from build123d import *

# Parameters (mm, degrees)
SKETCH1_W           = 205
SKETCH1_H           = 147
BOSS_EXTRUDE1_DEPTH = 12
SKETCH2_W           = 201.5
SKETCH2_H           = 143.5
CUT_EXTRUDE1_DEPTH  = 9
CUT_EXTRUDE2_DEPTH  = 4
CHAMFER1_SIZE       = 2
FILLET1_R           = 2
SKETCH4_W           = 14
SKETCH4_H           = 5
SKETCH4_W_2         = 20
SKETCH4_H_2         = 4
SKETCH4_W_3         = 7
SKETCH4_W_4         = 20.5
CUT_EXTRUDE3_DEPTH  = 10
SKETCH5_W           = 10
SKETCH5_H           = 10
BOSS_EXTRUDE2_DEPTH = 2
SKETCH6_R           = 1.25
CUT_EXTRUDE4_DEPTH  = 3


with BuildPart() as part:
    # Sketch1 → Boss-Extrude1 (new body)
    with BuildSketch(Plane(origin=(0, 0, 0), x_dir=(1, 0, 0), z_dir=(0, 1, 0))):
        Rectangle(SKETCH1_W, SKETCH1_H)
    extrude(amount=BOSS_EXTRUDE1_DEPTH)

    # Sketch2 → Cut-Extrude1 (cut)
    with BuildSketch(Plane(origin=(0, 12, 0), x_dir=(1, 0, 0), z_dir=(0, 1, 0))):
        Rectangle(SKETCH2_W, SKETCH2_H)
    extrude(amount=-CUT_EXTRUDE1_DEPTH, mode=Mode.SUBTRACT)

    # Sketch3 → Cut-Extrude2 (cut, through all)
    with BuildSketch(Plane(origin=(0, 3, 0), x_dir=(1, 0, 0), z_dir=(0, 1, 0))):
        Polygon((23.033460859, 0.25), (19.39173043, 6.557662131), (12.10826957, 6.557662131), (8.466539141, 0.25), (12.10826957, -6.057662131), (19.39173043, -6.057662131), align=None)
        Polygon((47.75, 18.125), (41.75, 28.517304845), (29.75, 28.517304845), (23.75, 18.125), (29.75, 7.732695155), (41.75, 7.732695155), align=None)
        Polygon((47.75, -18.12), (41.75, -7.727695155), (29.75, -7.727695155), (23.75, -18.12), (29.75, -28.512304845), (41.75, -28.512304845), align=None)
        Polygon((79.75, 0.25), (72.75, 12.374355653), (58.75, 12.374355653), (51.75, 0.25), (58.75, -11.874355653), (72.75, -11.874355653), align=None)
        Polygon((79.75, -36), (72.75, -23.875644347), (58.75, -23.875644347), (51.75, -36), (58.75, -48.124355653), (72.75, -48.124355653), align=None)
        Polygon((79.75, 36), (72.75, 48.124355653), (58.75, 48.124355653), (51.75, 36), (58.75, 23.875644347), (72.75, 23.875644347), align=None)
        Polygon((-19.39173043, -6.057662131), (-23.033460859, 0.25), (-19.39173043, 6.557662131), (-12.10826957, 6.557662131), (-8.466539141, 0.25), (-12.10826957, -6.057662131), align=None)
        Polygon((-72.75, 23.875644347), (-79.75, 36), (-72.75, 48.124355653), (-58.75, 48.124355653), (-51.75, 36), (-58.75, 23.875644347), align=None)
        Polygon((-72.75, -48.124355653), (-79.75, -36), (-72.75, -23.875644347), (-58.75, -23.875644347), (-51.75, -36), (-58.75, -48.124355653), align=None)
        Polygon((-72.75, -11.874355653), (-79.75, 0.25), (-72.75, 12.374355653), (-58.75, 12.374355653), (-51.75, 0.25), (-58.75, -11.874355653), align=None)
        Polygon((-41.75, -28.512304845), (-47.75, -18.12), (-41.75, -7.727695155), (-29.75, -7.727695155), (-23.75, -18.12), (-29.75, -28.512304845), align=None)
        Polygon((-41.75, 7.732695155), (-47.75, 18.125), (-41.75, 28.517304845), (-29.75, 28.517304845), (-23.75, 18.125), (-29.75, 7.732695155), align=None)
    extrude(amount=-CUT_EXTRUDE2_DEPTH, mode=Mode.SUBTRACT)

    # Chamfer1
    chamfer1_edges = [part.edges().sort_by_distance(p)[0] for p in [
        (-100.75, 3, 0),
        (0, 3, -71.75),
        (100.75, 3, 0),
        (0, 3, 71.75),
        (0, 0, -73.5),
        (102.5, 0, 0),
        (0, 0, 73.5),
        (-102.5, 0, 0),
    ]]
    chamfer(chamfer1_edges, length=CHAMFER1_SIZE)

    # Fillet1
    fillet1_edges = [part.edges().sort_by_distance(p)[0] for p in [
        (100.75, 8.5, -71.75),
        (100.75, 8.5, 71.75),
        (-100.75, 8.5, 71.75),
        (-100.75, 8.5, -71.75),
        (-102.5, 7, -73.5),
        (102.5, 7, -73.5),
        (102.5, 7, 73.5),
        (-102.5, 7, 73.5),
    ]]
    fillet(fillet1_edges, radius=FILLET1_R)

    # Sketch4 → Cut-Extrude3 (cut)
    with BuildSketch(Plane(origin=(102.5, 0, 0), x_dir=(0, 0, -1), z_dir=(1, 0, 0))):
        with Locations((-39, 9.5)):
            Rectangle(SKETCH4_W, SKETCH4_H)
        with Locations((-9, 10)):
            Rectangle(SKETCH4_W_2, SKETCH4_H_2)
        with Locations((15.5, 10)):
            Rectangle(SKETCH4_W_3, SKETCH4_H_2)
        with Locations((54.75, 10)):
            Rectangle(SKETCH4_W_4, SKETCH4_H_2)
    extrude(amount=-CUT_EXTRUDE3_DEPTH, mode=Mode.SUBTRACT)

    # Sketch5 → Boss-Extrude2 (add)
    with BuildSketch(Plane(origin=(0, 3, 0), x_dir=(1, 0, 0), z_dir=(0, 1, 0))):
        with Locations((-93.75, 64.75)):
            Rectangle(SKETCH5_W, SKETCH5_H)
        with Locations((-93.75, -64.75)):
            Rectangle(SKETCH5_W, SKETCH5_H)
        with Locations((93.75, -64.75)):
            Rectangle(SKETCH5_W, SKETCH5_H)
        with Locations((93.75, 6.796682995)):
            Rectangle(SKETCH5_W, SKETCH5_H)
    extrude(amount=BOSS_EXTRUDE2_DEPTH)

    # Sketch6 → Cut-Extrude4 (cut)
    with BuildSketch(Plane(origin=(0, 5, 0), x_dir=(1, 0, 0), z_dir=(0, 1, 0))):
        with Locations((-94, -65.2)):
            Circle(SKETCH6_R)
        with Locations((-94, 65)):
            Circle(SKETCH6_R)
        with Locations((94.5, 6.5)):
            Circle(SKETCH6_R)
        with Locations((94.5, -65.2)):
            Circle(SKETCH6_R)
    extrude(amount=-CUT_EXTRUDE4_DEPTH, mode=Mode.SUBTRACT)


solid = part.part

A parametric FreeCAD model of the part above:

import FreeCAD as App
import Part
import Sketcher
from FreeCAD import Vector
Q = App.Units.Quantity


def edges_at(feature, points):
    """Names of the edges that pass closest to the given points."""
    edges = feature.Shape.Edges
    near = lambda p: min(range(len(edges)), key=lambda i: edges[i].distToShape(Part.Vertex(*p))[0])
    return sorted({f"Edge{near(p) + 1}" for p in points})

doc = App.newDocument("Part")
body = doc.addObject("PartDesign::Body", "Body")

# Sketch on XZ plane
sketch1 = body.newObject("Sketcher::SketchObject", "Sketch")
sketch1.AttachmentSupport = (doc.getObject("XZ_Plane"), [""])
sketch1.MapMode = "FlatFace"
sketch1.addGeometry([
    Part.LineSegment(Vector(-102.5, -73.5, 0), Vector(-102.5, 73.5, 0)),
    Part.LineSegment(Vector(-102.5, 73.5, 0), Vector(102.5, 73.5, 0)),
    Part.LineSegment(Vector(102.5, 73.5, 0), Vector(102.5, -73.5, 0)),
    Part.LineSegment(Vector(102.5, -73.5, 0), Vector(-102.5, -73.5, 0)),
], False)
sketch1.addConstraint([
    Sketcher.Constraint("Coincident", 0, 2, 1, 1),
    Sketcher.Constraint("Coincident", 1, 2, 2, 1),
    Sketcher.Constraint("Coincident", 2, 2, 3, 1),
    Sketcher.Constraint("Coincident", 3, 2, 0, 1),
    Sketcher.Constraint("Vertical", 0),
    Sketcher.Constraint("Horizontal", 1),
    Sketcher.Constraint("Vertical", 2),
    Sketcher.Constraint("Horizontal", 3),
    Sketcher.Constraint("Symmetric", 0, 2, 2, 2, -1, 1),
    Sketcher.Constraint("DistanceX", 1, 1, 1, 2, Q("205 mm")),
    Sketcher.Constraint("DistanceY", 0, 1, 0, 2, Q("147 mm")),
])
pad1 = body.newObject("PartDesign::Pad", "Pad")
pad1.Profile = sketch1
pad1.Length = 12
pad1.Reversed = True

# Sketch on XZ plane
sketch2 = body.newObject("Sketcher::SketchObject", "Sketch001")
sketch2.AttachmentSupport = (doc.getObject("XZ_Plane"), [""])
sketch2.MapMode = "FlatFace"
sketch2.AttachmentOffset = App.Placement(Vector(0, 0, -12), App.Rotation())
sketch2.addGeometry([
    Part.LineSegment(Vector(-100.75, -71.75, 0), Vector(-100.75, 71.75, 0)),
    Part.LineSegment(Vector(-100.75, 71.75, 0), Vector(100.75, 71.75, 0)),
    Part.LineSegment(Vector(100.75, 71.75, 0), Vector(100.75, -71.75, 0)),
    Part.LineSegment(Vector(100.75, -71.75, 0), Vector(-100.75, -71.75, 0)),
], False)
sketch2.addConstraint([
    Sketcher.Constraint("Coincident", 0, 2, 1, 1),
    Sketcher.Constraint("Coincident", 1, 2, 2, 1),
    Sketcher.Constraint("Coincident", 2, 2, 3, 1),
    Sketcher.Constraint("Coincident", 3, 2, 0, 1),
    Sketcher.Constraint("Vertical", 0),
    Sketcher.Constraint("Horizontal", 1),
    Sketcher.Constraint("Vertical", 2),
    Sketcher.Constraint("Horizontal", 3),
    Sketcher.Constraint("Symmetric", 0, 2, 2, 2, -1, 1),
    Sketcher.Constraint("DistanceX", 1, 1, 1, 2, Q("201.5 mm")),
    Sketcher.Constraint("DistanceY", 0, 1, 0, 2, Q("143.5 mm")),
])
pocket1 = body.newObject("PartDesign::Pocket", "Pocket")
pocket1.Profile = sketch2
pocket1.Length = 9
pocket1.Reversed = True

# Sketch on XZ plane
sketch3 = body.newObject("Sketcher::SketchObject", "Sketch002")
sketch3.AttachmentSupport = (doc.getObject("XZ_Plane"), [""])
sketch3.MapMode = "FlatFace"
sketch3.AttachmentOffset = App.Placement(Vector(0, 0, -3), App.Rotation())
sketch3.addGeometry([
    Part.LineSegment(Vector(23.033461, -0.25, 0), Vector(19.39173, -6.557662, 0)),  # 0
    Part.LineSegment(Vector(19.39173, -6.557662, 0), Vector(12.10827, -6.557662, 0)),  # 1
    Part.LineSegment(Vector(12.10827, -6.557662, 0), Vector(8.466539, -0.25, 0)),  # 2
    Part.LineSegment(Vector(8.466539, -0.25, 0), Vector(12.10827, 6.057662, 0)),  # 3
    Part.LineSegment(Vector(12.10827, 6.057662, 0), Vector(19.39173, 6.057662, 0)),  # 4
    Part.LineSegment(Vector(19.39173, 6.057662, 0), Vector(23.033461, -0.25, 0)),  # 5
    Part.LineSegment(Vector(47.75, -18.125, 0), Vector(41.75, -28.517305, 0)),  # 6
    Part.LineSegment(Vector(41.75, -28.517305, 0), Vector(29.75, -28.517305, 0)),  # 7
    Part.LineSegment(Vector(29.75, -28.517305, 0), Vector(23.75, -18.125, 0)),  # 8
    Part.LineSegment(Vector(23.75, -18.125, 0), Vector(29.75, -7.732695, 0)),  # 9
    Part.LineSegment(Vector(29.75, -7.732695, 0), Vector(41.75, -7.732695, 0)),  # 10
    Part.LineSegment(Vector(41.75, -7.732695, 0), Vector(47.75, -18.125, 0)),  # 11
    Part.LineSegment(Vector(47.75, 18.12, 0), Vector(41.75, 7.727695, 0)),  # 12
    Part.LineSegment(Vector(41.75, 7.727695, 0), Vector(29.75, 7.727695, 0)),  # 13
    Part.LineSegment(Vector(29.75, 7.727695, 0), Vector(23.75, 18.12, 0)),  # 14
    Part.LineSegment(Vector(23.75, 18.12, 0), Vector(29.75, 28.512305, 0)),  # 15
    Part.LineSegment(Vector(29.75, 28.512305, 0), Vector(41.75, 28.512305, 0)),  # 16
    Part.LineSegment(Vector(41.75, 28.512305, 0), Vector(47.75, 18.12, 0)),  # 17
    Part.LineSegment(Vector(79.75, -0.25, 0), Vector(72.75, -12.374356, 0)),  # 18
    Part.LineSegment(Vector(72.75, -12.374356, 0), Vector(58.75, -12.374356, 0)),  # 19
    Part.LineSegment(Vector(58.75, -12.374356, 0), Vector(51.75, -0.25, 0)),  # 20
    Part.LineSegment(Vector(51.75, -0.25, 0), Vector(58.75, 11.874356, 0)),  # 21
    Part.LineSegment(Vector(58.75, 11.874356, 0), Vector(72.75, 11.874356, 0)),  # 22
    Part.LineSegment(Vector(72.75, 11.874356, 0), Vector(79.75, -0.25, 0)),  # 23
    Part.LineSegment(Vector(79.75, 36, 0), Vector(72.75, 23.875644, 0)),  # 24
    Part.LineSegment(Vector(72.75, 23.875644, 0), Vector(58.75, 23.875644, 0)),  # 25
    Part.LineSegment(Vector(58.75, 23.875644, 0), Vector(51.75, 36, 0)),  # 26
    Part.LineSegment(Vector(51.75, 36, 0), Vector(58.75, 48.124356, 0)),  # 27
    Part.LineSegment(Vector(58.75, 48.124356, 0), Vector(72.75, 48.124356, 0)),  # 28
    Part.LineSegment(Vector(72.75, 48.124356, 0), Vector(79.75, 36, 0)),  # 29
    Part.LineSegment(Vector(79.75, -36, 0), Vector(72.75, -48.124356, 0)),  # 30
    Part.LineSegment(Vector(72.75, -48.124356, 0), Vector(58.75, -48.124356, 0)),  # 31
    Part.LineSegment(Vector(58.75, -48.124356, 0), Vector(51.75, -36, 0)),  # 32
    Part.LineSegment(Vector(51.75, -36, 0), Vector(58.75, -23.875644, 0)),  # 33
    Part.LineSegment(Vector(58.75, -23.875644, 0), Vector(72.75, -23.875644, 0)),  # 34
    Part.LineSegment(Vector(72.75, -23.875644, 0), Vector(79.75, -36, 0)),  # 35
    Part.LineSegment(Vector(-23.033461, -0.25, 0), Vector(-19.39173, 6.057662, 0)),  # 36
    Part.LineSegment(Vector(-19.39173, 6.057662, 0), Vector(-12.10827, 6.057662, 0)),  # 37
    Part.LineSegment(Vector(-12.10827, 6.057662, 0), Vector(-8.466539, -0.25, 0)),  # 38
    Part.LineSegment(Vector(-8.466539, -0.25, 0), Vector(-12.10827, -6.557662, 0)),  # 39
    Part.LineSegment(Vector(-12.10827, -6.557662, 0), Vector(-19.39173, -6.557662, 0)),  # 40
    Part.LineSegment(Vector(-19.39173, -6.557662, 0), Vector(-23.033461, -0.25, 0)),  # 41
    Part.LineSegment(Vector(-79.75, -36, 0), Vector(-72.75, -23.875644, 0)),  # 42
    Part.LineSegment(Vector(-72.75, -23.875644, 0), Vector(-58.75, -23.875644, 0)),  # 43
    Part.LineSegment(Vector(-58.75, -23.875644, 0), Vector(-51.75, -36, 0)),  # 44
    Part.LineSegment(Vector(-51.75, -36, 0), Vector(-58.75, -48.124356, 0)),  # 45
    Part.LineSegment(Vector(-58.75, -48.124356, 0), Vector(-72.75, -48.124356, 0)),  # 46
    Part.LineSegment(Vector(-72.75, -48.124356, 0), Vector(-79.75, -36, 0)),  # 47
    Part.LineSegment(Vector(-79.75, 36, 0), Vector(-72.75, 48.124356, 0)),  # 48
    Part.LineSegment(Vector(-72.75, 48.124356, 0), Vector(-58.75, 48.124356, 0)),  # 49
    Part.LineSegment(Vector(-58.75, 48.124356, 0), Vector(-51.75, 36, 0)),  # 50
    Part.LineSegment(Vector(-51.75, 36, 0), Vector(-58.75, 23.875644, 0)),  # 51
    Part.LineSegment(Vector(-58.75, 23.875644, 0), Vector(-72.75, 23.875644, 0)),  # 52
    Part.LineSegment(Vector(-72.75, 23.875644, 0), Vector(-79.75, 36, 0)),  # 53
    Part.LineSegment(Vector(-79.75, -0.25, 0), Vector(-72.75, 11.874356, 0)),  # 54
    Part.LineSegment(Vector(-72.75, 11.874356, 0), Vector(-58.75, 11.874356, 0)),  # 55
    Part.LineSegment(Vector(-58.75, 11.874356, 0), Vector(-51.75, -0.25, 0)),  # 56
    Part.LineSegment(Vector(-51.75, -0.25, 0), Vector(-58.75, -12.374356, 0)),  # 57
    Part.LineSegment(Vector(-58.75, -12.374356, 0), Vector(-72.75, -12.374356, 0)),  # 58
    Part.LineSegment(Vector(-72.75, -12.374356, 0), Vector(-79.75, -0.25, 0)),  # 59
    Part.LineSegment(Vector(-47.75, 18.12, 0), Vector(-41.75, 28.512305, 0)),  # 60
    Part.LineSegment(Vector(-41.75, 28.512305, 0), Vector(-29.75, 28.512305, 0)),  # 61
    Part.LineSegment(Vector(-29.75, 28.512305, 0), Vector(-23.75, 18.12, 0)),  # 62
    Part.LineSegment(Vector(-23.75, 18.12, 0), Vector(-29.75, 7.727695, 0)),  # 63
    Part.LineSegment(Vector(-29.75, 7.727695, 0), Vector(-41.75, 7.727695, 0)),  # 64
    Part.LineSegment(Vector(-41.75, 7.727695, 0), Vector(-47.75, 18.12, 0)),  # 65
    Part.LineSegment(Vector(-47.75, -18.125, 0), Vector(-41.75, -7.732695, 0)),  # 66
    Part.LineSegment(Vector(-41.75, -7.732695, 0), Vector(-29.75, -7.732695, 0)),  # 67
    Part.LineSegment(Vector(-29.75, -7.732695, 0), Vector(-23.75, -18.125, 0)),  # 68
    Part.LineSegment(Vector(-23.75, -18.125, 0), Vector(-29.75, -28.517305, 0)),  # 69
    Part.LineSegment(Vector(-29.75, -28.517305, 0), Vector(-41.75, -28.517305, 0)),  # 70
    Part.LineSegment(Vector(-41.75, -28.517305, 0), Vector(-47.75, -18.125, 0)),  # 71
], False)
sketch3.addConstraint([
    Sketcher.Constraint("Coincident", 0, 2, 1, 1),
    Sketcher.Constraint("Coincident", 1, 2, 2, 1),
    Sketcher.Constraint("Coincident", 2, 2, 3, 1),
    Sketcher.Constraint("Coincident", 3, 2, 4, 1),
    Sketcher.Constraint("Coincident", 4, 2, 5, 1),
    Sketcher.Constraint("Coincident", 5, 2, 0, 1),
    Sketcher.Constraint("Coincident", 6, 2, 7, 1),
    Sketcher.Constraint("Coincident", 7, 2, 8, 1),
    Sketcher.Constraint("Coincident", 8, 2, 9, 1),
    Sketcher.Constraint("Coincident", 9, 2, 10, 1),
    Sketcher.Constraint("Coincident", 10, 2, 11, 1),
    Sketcher.Constraint("Coincident", 11, 2, 6, 1),
    Sketcher.Constraint("Coincident", 12, 2, 13, 1),
    Sketcher.Constraint("Coincident", 13, 2, 14, 1),
    Sketcher.Constraint("Coincident", 14, 2, 15, 1),
    Sketcher.Constraint("Coincident", 15, 2, 16, 1),
    Sketcher.Constraint("Coincident", 16, 2, 17, 1),
    Sketcher.Constraint("Coincident", 17, 2, 12, 1),
    Sketcher.Constraint("Coincident", 18, 2, 19, 1),
    Sketcher.Constraint("Coincident", 19, 2, 20, 1),
    Sketcher.Constraint("Coincident", 20, 2, 21, 1),
    Sketcher.Constraint("Coincident", 21, 2, 22, 1),
    Sketcher.Constraint("Coincident", 22, 2, 23, 1),
    Sketcher.Constraint("Coincident", 23, 2, 18, 1),
    Sketcher.Constraint("Coincident", 24, 2, 25, 1),
    Sketcher.Constraint("Coincident", 25, 2, 26, 1),
    Sketcher.Constraint("Coincident", 26, 2, 27, 1),
    Sketcher.Constraint("Coincident", 27, 2, 28, 1),
    Sketcher.Constraint("Coincident", 28, 2, 29, 1),
    Sketcher.Constraint("Coincident", 29, 2, 24, 1),
    Sketcher.Constraint("Coincident", 30, 2, 31, 1),
    Sketcher.Constraint("Coincident", 31, 2, 32, 1),
    Sketcher.Constraint("Coincident", 32, 2, 33, 1),
    Sketcher.Constraint("Coincident", 33, 2, 34, 1),
    Sketcher.Constraint("Coincident", 34, 2, 35, 1),
    Sketcher.Constraint("Coincident", 35, 2, 30, 1),
    Sketcher.Constraint("Coincident", 36, 2, 37, 1),
    Sketcher.Constraint("Coincident", 37, 2, 38, 1),
    Sketcher.Constraint("Coincident", 38, 2, 39, 1),
    Sketcher.Constraint("Coincident", 39, 2, 40, 1),
    Sketcher.Constraint("Coincident", 40, 2, 41, 1),
    Sketcher.Constraint("Coincident", 41, 2, 36, 1),
    Sketcher.Constraint("Coincident", 42, 2, 43, 1),
    Sketcher.Constraint("Coincident", 43, 2, 44, 1),
    Sketcher.Constraint("Coincident", 44, 2, 45, 1),
    Sketcher.Constraint("Coincident", 45, 2, 46, 1),
    Sketcher.Constraint("Coincident", 46, 2, 47, 1),
    Sketcher.Constraint("Coincident", 47, 2, 42, 1),
    Sketcher.Constraint("Coincident", 48, 2, 49, 1),
    Sketcher.Constraint("Coincident", 49, 2, 50, 1),
    Sketcher.Constraint("Coincident", 50, 2, 51, 1),
    Sketcher.Constraint("Coincident", 51, 2, 52, 1),
    Sketcher.Constraint("Coincident", 52, 2, 53, 1),
    Sketcher.Constraint("Coincident", 53, 2, 48, 1),
    Sketcher.Constraint("Coincident", 54, 2, 55, 1),
    Sketcher.Constraint("Coincident", 55, 2, 56, 1),
    Sketcher.Constraint("Coincident", 56, 2, 57, 1),
    Sketcher.Constraint("Coincident", 57, 2, 58, 1),
    Sketcher.Constraint("Coincident", 58, 2, 59, 1),
    Sketcher.Constraint("Coincident", 59, 2, 54, 1),
    Sketcher.Constraint("Coincident", 60, 2, 61, 1),
    Sketcher.Constraint("Coincident", 61, 2, 62, 1),
    Sketcher.Constraint("Coincident", 62, 2, 63, 1),
    Sketcher.Constraint("Coincident", 63, 2, 64, 1),
    Sketcher.Constraint("Coincident", 64, 2, 65, 1),
    Sketcher.Constraint("Coincident", 65, 2, 60, 1),
    Sketcher.Constraint("Coincident", 66, 2, 67, 1),
    Sketcher.Constraint("Coincident", 67, 2, 68, 1),
    Sketcher.Constraint("Coincident", 68, 2, 69, 1),
    Sketcher.Constraint("Coincident", 69, 2, 70, 1),
    Sketcher.Constraint("Coincident", 70, 2, 71, 1),
    Sketcher.Constraint("Coincident", 71, 2, 66, 1),
    Sketcher.Constraint("Horizontal", 1),
    Sketcher.Constraint("Horizontal", 4),
    Sketcher.Constraint("Horizontal", 7),
    Sketcher.Constraint("Horizontal", 10),
    Sketcher.Constraint("Horizontal", 13),
    Sketcher.Constraint("Horizontal", 16),
    Sketcher.Constraint("Horizontal", 19),
    Sketcher.Constraint("Horizontal", 22),
    Sketcher.Constraint("Horizontal", 25),
    Sketcher.Constraint("Horizontal", 28),
    Sketcher.Constraint("Horizontal", 31),
    Sketcher.Constraint("Horizontal", 34),
    Sketcher.Constraint("Horizontal", 37),
    Sketcher.Constraint("Horizontal", 40),
    Sketcher.Constraint("Horizontal", 43),
    Sketcher.Constraint("Horizontal", 46),
    Sketcher.Constraint("Horizontal", 49),
    Sketcher.Constraint("Horizontal", 52),
    Sketcher.Constraint("Horizontal", 55),
    Sketcher.Constraint("Horizontal", 58),
    Sketcher.Constraint("Horizontal", 61),
    Sketcher.Constraint("Horizontal", 64),
    Sketcher.Constraint("Horizontal", 67),
    Sketcher.Constraint("Horizontal", 70),
    Sketcher.Constraint("Symmetric", 24, 2, 42, 2, -1, 1),
    Sketcher.Constraint("Symmetric", 26, 2, 44, 2, -1, 1),
    Sketcher.Constraint("Symmetric", 27, 2, 45, 2, -1, 1),
    Sketcher.Constraint("Symmetric", 29, 2, 47, 2, -1, 1),
    Sketcher.Constraint("Symmetric", 30, 2, 48, 2, -1, 1),
    Sketcher.Constraint("Symmetric", 32, 2, 50, 2, -1, 1),
    Sketcher.Constraint("Symmetric", 33, 2, 51, 2, -1, 1),
    Sketcher.Constraint("Symmetric", 35, 2, 53, 2, -1, 1),
    Sketcher.Constraint("Symmetric", 4, 2, 36, 2, -2),
    Sketcher.Constraint("Symmetric", 2, 2, 38, 2, -2),
    Sketcher.Constraint("Symmetric", 1, 2, 39, 2, -2),
    Sketcher.Constraint("Symmetric", 5, 2, 41, 2, -2),
    Sketcher.Constraint("Symmetric", 34, 2, 42, 2, -2),
    Sketcher.Constraint("Symmetric", 32, 2, 44, 2, -2),
    Sketcher.Constraint("Symmetric", 31, 2, 45, 2, -2),
    Sketcher.Constraint("Symmetric", 35, 2, 47, 2, -2),
    Sketcher.Constraint("Symmetric", 22, 2, 54, 2, -2),
    Sketcher.Constraint("Symmetric", 20, 2, 56, 2, -2),
    Sketcher.Constraint("Symmetric", 19, 2, 57, 2, -2),
    Sketcher.Constraint("Symmetric", 23, 2, 59, 2, -2),
    Sketcher.Constraint("Symmetric", 16, 2, 60, 2, -2),
    Sketcher.Constraint("Symmetric", 14, 2, 62, 2, -2),
    Sketcher.Constraint("Symmetric", 13, 2, 63, 2, -2),
    Sketcher.Constraint("Symmetric", 17, 2, 65, 2, -2),
    Sketcher.Constraint("Symmetric", 10, 2, 66, 2, -2),
    Sketcher.Constraint("Symmetric", 8, 2, 68, 2, -2),
    Sketcher.Constraint("Symmetric", 7, 2, 69, 2, -2),
    Sketcher.Constraint("Symmetric", 11, 2, 71, 2, -2),
    Sketcher.Constraint("Parallel", 0, 3),
    Sketcher.Constraint("Parallel", 2, 5),
    Sketcher.Constraint("Parallel", 3, 6),
    Sketcher.Constraint("Parallel", 5, 8),
    Sketcher.Constraint("Parallel", 6, 9),
    Sketcher.Constraint("Parallel", 8, 11),
    Sketcher.Constraint("Parallel", 9, 12),
    Sketcher.Constraint("Parallel", 11, 14),
    Sketcher.Constraint("Parallel", 12, 15),
    Sketcher.Constraint("Parallel", 14, 17),
    Sketcher.Constraint("Parallel", 15, 18),
    Sketcher.Constraint("Parallel", 17, 20),
    Sketcher.Constraint("Parallel", 18, 21),
    Sketcher.Constraint("Parallel", 20, 23),
    Sketcher.Constraint("Parallel", 21, 24),
    Sketcher.Constraint("Parallel", 23, 26),
    Sketcher.Constraint("Parallel", 24, 27),
    Sketcher.Constraint("Parallel", 26, 29),
    Sketcher.Constraint("Parallel", 27, 30),
    Sketcher.Constraint("Parallel", 29, 32),
    Sketcher.Constraint("Parallel", 30, 33),
    Sketcher.Constraint("Parallel", 35, 38),
    Sketcher.Constraint("Parallel", 38, 41),
    Sketcher.Constraint("Parallel", 41, 44),
    Sketcher.Constraint("Parallel", 44, 47),
    Sketcher.Constraint("Parallel", 47, 50),
    Sketcher.Constraint("Parallel", 50, 53),
    Sketcher.Constraint("Parallel", 53, 56),
    Sketcher.Constraint("Parallel", 56, 59),
    Sketcher.Constraint("Parallel", 59, 62),
    Sketcher.Constraint("Parallel", 62, 65),
    Sketcher.Constraint("Parallel", 65, 68),
    Sketcher.Constraint("Parallel", 68, 71),
    Sketcher.Constraint("Horizontal", 2, 2, 5, 2),
    Sketcher.Constraint("Horizontal", 8, 2, 11, 2),
    Sketcher.Constraint("Horizontal", 14, 2, 17, 2),
    Sketcher.Constraint("Horizontal", 5, 2, 20, 2),
    Sketcher.Constraint("Horizontal", 20, 2, 23, 2),
    Sketcher.Constraint("Horizontal", 26, 2, 29, 2),
    Sketcher.Constraint("Vertical", 1, 2, 3, 2),
    Sketcher.Constraint("Vertical", 7, 2, 9, 2),
    Sketcher.Constraint("Vertical", 10, 2, 12, 2),
    Sketcher.Constraint("Vertical", 9, 2, 13, 2),
    Sketcher.Constraint("Vertical", 8, 2, 14, 2),
    Sketcher.Constraint("Vertical", 13, 2, 15, 2),
    Sketcher.Constraint("Vertical", 19, 2, 21, 2),
    Sketcher.Constraint("Vertical", 22, 2, 24, 2),
    Sketcher.Constraint("Vertical", 21, 2, 25, 2),
    Sketcher.Constraint("Vertical", 20, 2, 26, 2),
    Sketcher.Constraint("Vertical", 25, 2, 27, 2),
    Sketcher.Constraint("DistanceX", 7, 2, 7, 1, Q("12 mm")),
    Sketcher.Constraint("DistanceX", 19, 2, 19, 1, Q("14 mm")),
    Sketcher.Constraint("Angle", 0, Q("-120 deg")),
    Sketcher.Constraint("Distance", 6, Q("12 mm")),
    Sketcher.Constraint("Distance", 18, Q("14 mm")),
    Sketcher.Constraint("DistanceY", -1, 1, 26, 2, Q("36 mm")),
    Sketcher.Constraint("DistanceY", 2, 2, -1, 1, Q("0.25 mm")),
    Sketcher.Constraint("DistanceX", -1, 1, 6, 2, Q("41.75 mm")),
    Sketcher.Constraint("DistanceY", -1, 1, 14, 2, Q("18.12 mm")),
    Sketcher.Constraint("DistanceX", -1, 1, 18, 2, Q("72.75 mm")),
    Sketcher.Constraint("DistanceY", 8, 2, -1, 1, Q("18.125 mm")),
    Sketcher.Constraint("DistanceX", 1, 2, 1, 1, Q("7.283461 mm")),
    Sketcher.Constraint("Distance", 0, Q("7.283461 mm")),
    Sketcher.Constraint("DistanceX", -1, 1, 0, 2, Q("19.39173 mm")),
])
pocket2 = body.newObject("PartDesign::Pocket", "Pocket001")
pocket2.Profile = sketch3
pocket2.Type = "ThroughAll"
pocket2.Reversed = True
doc.recompute()

chamfer = body.newObject("PartDesign::Chamfer", "Chamfer")
chamfer.Base = (pocket2, edges_at(pocket2, [
    (-100.75, 3, 0),
    (0, 3, -71.75),
    (100.75, 3, 0),
    (0, 3, 71.75),
    (0, 0, -73.5),
    (102.5, 0, 0),
    (0, 0, 73.5),
    (-102.5, 0, 0),
]))
chamfer.Size = 2
doc.recompute()

fillet = body.newObject("PartDesign::Fillet", "Fillet")
fillet.Base = (chamfer, edges_at(chamfer, [
    (100.75, 8.5, -71.75),
    (100.75, 8.5, 71.75),
    (-100.75, 8.5, 71.75),
    (-100.75, 8.5, -71.75),
    (-102.5, 7, -73.5),
    (102.5, 7, -73.5),
    (102.5, 7, 73.5),
    (-102.5, 7, 73.5),
]))
fillet.Radius = 2

# Sketch on YZ plane
sketch4 = body.newObject("Sketcher::SketchObject", "Sketch003")
sketch4.AttachmentSupport = (doc.getObject("YZ_Plane"), [""])
sketch4.MapMode = "FlatFace"
sketch4.AttachmentOffset = App.Placement(Vector(0, 0, 102.5), App.Rotation())
sketch4.addGeometry([
    Part.LineSegment(Vector(12, 46, 0), Vector(7, 46, 0)),  # 0
    Part.LineSegment(Vector(7, 46, 0), Vector(7, 32, 0)),  # 1
    Part.LineSegment(Vector(7, 32, 0), Vector(12, 32, 0)),  # 2
    Part.LineSegment(Vector(12, 32, 0), Vector(12, 46, 0)),  # 3
    Part.LineSegment(Vector(12, 19, 0), Vector(8, 19, 0)),  # 4
    Part.LineSegment(Vector(8, 19, 0), Vector(8, -1, 0)),  # 5
    Part.LineSegment(Vector(8, -1, 0), Vector(12, -1, 0)),  # 6
    Part.LineSegment(Vector(12, -1, 0), Vector(12, 19, 0)),  # 7
    Part.LineSegment(Vector(12, -12, 0), Vector(8, -12, 0)),  # 8
    Part.LineSegment(Vector(8, -12, 0), Vector(8, -19, 0)),  # 9
    Part.LineSegment(Vector(8, -19, 0), Vector(12, -19, 0)),  # 10
    Part.LineSegment(Vector(12, -19, 0), Vector(12, -12, 0)),  # 11
    Part.LineSegment(Vector(12, -44.5, 0), Vector(8, -44.5, 0)),  # 12
    Part.LineSegment(Vector(8, -44.5, 0), Vector(8, -65, 0)),  # 13
    Part.LineSegment(Vector(8, -65, 0), Vector(12, -65, 0)),  # 14
    Part.LineSegment(Vector(12, -65, 0), Vector(12, -44.5, 0)),  # 15
], False)
sketch4.addConstraint([
    Sketcher.Constraint("Coincident", 0, 2, 1, 1),
    Sketcher.Constraint("Coincident", 1, 2, 2, 1),
    Sketcher.Constraint("Coincident", 2, 2, 3, 1),
    Sketcher.Constraint("Coincident", 3, 2, 0, 1),
    Sketcher.Constraint("Coincident", 4, 2, 5, 1),
    Sketcher.Constraint("Coincident", 5, 2, 6, 1),
    Sketcher.Constraint("Coincident", 6, 2, 7, 1),
    Sketcher.Constraint("Coincident", 7, 2, 4, 1),
    Sketcher.Constraint("Coincident", 8, 2, 9, 1),
    Sketcher.Constraint("Coincident", 9, 2, 10, 1),
    Sketcher.Constraint("Coincident", 10, 2, 11, 1),
    Sketcher.Constraint("Coincident", 11, 2, 8, 1),
    Sketcher.Constraint("Coincident", 12, 2, 13, 1),
    Sketcher.Constraint("Coincident", 13, 2, 14, 1),
    Sketcher.Constraint("Coincident", 14, 2, 15, 1),
    Sketcher.Constraint("Coincident", 15, 2, 12, 1),
    Sketcher.Constraint("Horizontal", 0),
    Sketcher.Constraint("Vertical", 1),
    Sketcher.Constraint("Horizontal", 2),
    Sketcher.Constraint("Vertical", 3),
    Sketcher.Constraint("Horizontal", 4),
    Sketcher.Constraint("Vertical", 5),
    Sketcher.Constraint("Horizontal", 6),
    Sketcher.Constraint("Vertical", 7),
    Sketcher.Constraint("Horizontal", 8),
    Sketcher.Constraint("Vertical", 9),
    Sketcher.Constraint("Horizontal", 10),
    Sketcher.Constraint("Vertical", 11),
    Sketcher.Constraint("Horizontal", 12),
    Sketcher.Constraint("Vertical", 13),
    Sketcher.Constraint("Horizontal", 14),
    Sketcher.Constraint("Vertical", 15),
    Sketcher.Constraint("Symmetric", 4, 2, 9, 2, -1),
    Sketcher.Constraint("Vertical", 3, 2, 6, 2),
    Sketcher.Constraint("Vertical", 7, 2, 10, 2),
    Sketcher.Constraint("Vertical", 9, 2, 12, 2),
    Sketcher.Constraint("Vertical", 11, 2, 14, 2),
    Sketcher.Constraint("DistanceX", 0, 2, 0, 1, Q("5 mm")),
    Sketcher.Constraint("DistanceX", 4, 2, 4, 1, Q("4 mm")),
    Sketcher.Constraint("DistanceY", 1, 2, 1, 1, Q("14 mm")),
    Sketcher.Constraint("DistanceY", 5, 2, 5, 1, Q("20 mm")),
    Sketcher.Constraint("DistanceY", 9, 2, 9, 1, Q("7 mm")),
    Sketcher.Constraint("DistanceY", 13, 2, 13, 1, Q("20.5 mm")),
    Sketcher.Constraint("DistanceX", -1, 1, 0, 2, Q("7 mm")),
    Sketcher.Constraint("DistanceY", -1, 1, 0, 2, Q("46 mm")),
    Sketcher.Constraint("DistanceY", -1, 1, 4, 2, Q("19 mm")),
    Sketcher.Constraint("DistanceY", 13, 2, -1, 1, Q("65 mm")),
])
pocket3 = body.newObject("PartDesign::Pocket", "Pocket002")
pocket3.Profile = sketch4
pocket3.Length = 10

# Sketch on XZ plane
sketch5 = body.newObject("Sketcher::SketchObject", "Sketch004")
sketch5.AttachmentSupport = (doc.getObject("XZ_Plane"), [""])
sketch5.MapMode = "FlatFace"
sketch5.AttachmentOffset = App.Placement(Vector(0, 0, -3), App.Rotation())
sketch5.addGeometry([
    Part.LineSegment(Vector(-98.75, -69.75, 0), Vector(-98.75, -59.75, 0)),  # 0
    Part.LineSegment(Vector(-98.75, -59.75, 0), Vector(-88.75, -59.75, 0)),  # 1
    Part.LineSegment(Vector(-88.75, -59.75, 0), Vector(-88.75, -69.75, 0)),  # 2
    Part.LineSegment(Vector(-88.75, -69.75, 0), Vector(-98.75, -69.75, 0)),  # 3
    Part.LineSegment(Vector(-98.75, 59.75, 0), Vector(-98.75, 69.75, 0)),  # 4
    Part.LineSegment(Vector(-98.75, 69.75, 0), Vector(-88.75, 69.75, 0)),  # 5
    Part.LineSegment(Vector(-88.75, 69.75, 0), Vector(-88.75, 59.75, 0)),  # 6
    Part.LineSegment(Vector(-88.75, 59.75, 0), Vector(-98.75, 59.75, 0)),  # 7
    Part.LineSegment(Vector(88.75, 59.75, 0), Vector(88.75, 69.75, 0)),  # 8
    Part.LineSegment(Vector(88.75, 69.75, 0), Vector(98.75, 69.75, 0)),  # 9
    Part.LineSegment(Vector(98.75, 69.75, 0), Vector(98.75, 59.75, 0)),  # 10
    Part.LineSegment(Vector(98.75, 59.75, 0), Vector(88.75, 59.75, 0)),  # 11
    Part.LineSegment(Vector(88.75, -11.796683, 0), Vector(88.75, -1.796683, 0)),  # 12
    Part.LineSegment(Vector(88.75, -1.796683, 0), Vector(98.75, -1.796683, 0)),  # 13
    Part.LineSegment(Vector(98.75, -1.796683, 0), Vector(98.75, -11.796683, 0)),  # 14
    Part.LineSegment(Vector(98.75, -11.796683, 0), Vector(88.75, -11.796683, 0)),  # 15
], False)
sketch5.addConstraint([
    Sketcher.Constraint("Coincident", 0, 2, 1, 1),
    Sketcher.Constraint("Coincident", 1, 2, 2, 1),
    Sketcher.Constraint("Coincident", 2, 2, 3, 1),
    Sketcher.Constraint("Coincident", 3, 2, 0, 1),
    Sketcher.Constraint("Coincident", 4, 2, 5, 1),
    Sketcher.Constraint("Coincident", 5, 2, 6, 1),
    Sketcher.Constraint("Coincident", 6, 2, 7, 1),
    Sketcher.Constraint("Coincident", 7, 2, 4, 1),
    Sketcher.Constraint("Coincident", 8, 2, 9, 1),
    Sketcher.Constraint("Coincident", 9, 2, 10, 1),
    Sketcher.Constraint("Coincident", 10, 2, 11, 1),
    Sketcher.Constraint("Coincident", 11, 2, 8, 1),
    Sketcher.Constraint("Coincident", 12, 2, 13, 1),
    Sketcher.Constraint("Coincident", 13, 2, 14, 1),
    Sketcher.Constraint("Coincident", 14, 2, 15, 1),
    Sketcher.Constraint("Coincident", 15, 2, 12, 1),
    Sketcher.Constraint("Vertical", 0),
    Sketcher.Constraint("Horizontal", 1),
    Sketcher.Constraint("Vertical", 2),
    Sketcher.Constraint("Horizontal", 3),
    Sketcher.Constraint("Vertical", 4),
    Sketcher.Constraint("Horizontal", 5),
    Sketcher.Constraint("Vertical", 6),
    Sketcher.Constraint("Horizontal", 7),
    Sketcher.Constraint("Vertical", 8),
    Sketcher.Constraint("Horizontal", 9),
    Sketcher.Constraint("Vertical", 10),
    Sketcher.Constraint("Horizontal", 11),
    Sketcher.Constraint("Vertical", 12),
    Sketcher.Constraint("Horizontal", 13),
    Sketcher.Constraint("Vertical", 14),
    Sketcher.Constraint("Horizontal", 15),
    Sketcher.Constraint("Symmetric", 2, 2, 8, 2, -1, 1),
    Sketcher.Constraint("Symmetric", 0, 2, 10, 2, -1, 1),
    Sketcher.Constraint("Symmetric", 5, 2, 8, 2, -2),
    Sketcher.Constraint("Symmetric", 7, 2, 10, 2, -2),
    Sketcher.Constraint("Vertical", 11, 2, 12, 2),
    Sketcher.Constraint("Vertical", 10, 2, 13, 2),
    Sketcher.Constraint("Equal", 15, 0),
    Sketcher.Constraint("Equal", 10, 12),
    Sketcher.Constraint("DistanceX", 1, 1, 1, 2, Q("10 mm")),
    Sketcher.Constraint("DistanceY", 0, 2, 4, 2, Q("129.5 mm")),
    Sketcher.Constraint("DistanceX", 5, 2, 8, 2, Q("177.5 mm")),
    Sketcher.Constraint("DistanceY", 12, 2, -1, 1, Q("1.796683 mm")),
])
pad2 = body.newObject("PartDesign::Pad", "Pad001")
pad2.Profile = sketch5
pad2.Length = 2
pad2.Reversed = True

# Sketch on XZ plane
sketch6 = body.newObject("Sketcher::SketchObject", "Sketch005")
sketch6.AttachmentSupport = (doc.getObject("XZ_Plane"), [""])
sketch6.MapMode = "FlatFace"
sketch6.AttachmentOffset = App.Placement(Vector(0, 0, -5), App.Rotation())
sketch6.addGeometry([
    Part.Circle(Vector(-94, 65.2, 0), Vector(0, 0, 1), 1.25),
    Part.Circle(Vector(-94, -65, 0), Vector(0, 0, 1), 1.25),
    Part.Circle(Vector(94.5, -6.5, 0), Vector(0, 0, 1), 1.25),
    Part.Circle(Vector(94.5, 65.2, 0), Vector(0, 0, 1), 1.25),
], False)
sketch6.addConstraint([
    Sketcher.Constraint("Equal", 0, 1),
    Sketcher.Constraint("Equal", 1, 2),
    Sketcher.Constraint("Equal", 2, 3),
    Sketcher.Constraint("Horizontal", 0, 3, 3, 3),
    Sketcher.Constraint("Vertical", 0, 3, 1, 3),
    Sketcher.Constraint("Vertical", 2, 3, 3, 3),
    Sketcher.Constraint("Diameter", 0, Q("2.5 mm")),
    Sketcher.Constraint("DistanceX", 0, 3, -1, 1, Q("94 mm")),
    Sketcher.Constraint("DistanceY", 1, 3, -1, 1, Q("65 mm")),
    Sketcher.Constraint("DistanceY", -1, 1, 0, 3, Q("65.2 mm")),
    Sketcher.Constraint("DistanceX", -1, 1, 2, 3, Q("94.5 mm")),
    Sketcher.Constraint("DistanceY", 2, 3, -1, 1, Q("6.5 mm")),
])
pocket4 = body.newObject("PartDesign::Pocket", "Pocket003")
pocket4.Profile = sketch6
pocket4.Length = 3
pocket4.Reversed = True

doc.recompute()
